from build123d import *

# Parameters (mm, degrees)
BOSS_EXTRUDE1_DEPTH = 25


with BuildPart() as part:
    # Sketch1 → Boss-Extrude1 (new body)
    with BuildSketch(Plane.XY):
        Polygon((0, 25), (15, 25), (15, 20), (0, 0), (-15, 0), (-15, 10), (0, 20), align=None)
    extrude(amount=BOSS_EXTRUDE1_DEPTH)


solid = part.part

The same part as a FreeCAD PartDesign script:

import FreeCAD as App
import Part
import Sketcher

V = App.Vector

doc = App.newDocument("Part")
body = doc.addObject("PartDesign::Body", "Body")

sketch1 = doc.addObject("Sketcher::SketchObject", "Sketch")
body.addObject(sketch1)
sketch1.AttachmentSupport = (doc.XY_Plane, [""])
sketch1.MapMode = "FlatFace"
sketch1.addGeometry([
    Part.LineSegment(V(15, 25, 0), V(0, 25, 0)),
    Part.LineSegment(V(0, 25, 0), V(0, 20, 0)),
    Part.LineSegment(V(0, 20, 0), V(-15, 10, 0)),
    Part.LineSegment(V(-15, 10, 0), V(-15, 0, 0)),
    Part.LineSegment(V(-15, 0, 0), V(0, 0, 0)),
    Part.LineSegment(V(0, 0, 0), V(15, 20, 0)),
    Part.LineSegment(V(15, 20, 0), V(15, 25, 0)),
], False)
sketch1.addConstraint([
    Sketcher.Constraint("Coincident", 0, 2, 1, 1),
    Sketcher.Constraint("Coincident", 1, 2, 2, 1),
    Sketcher.Constraint("Coincident", 2, 2, 3, 1),
    Sketcher.Constraint("Coincident", 3, 2, 4, 1),
    Sketcher.Constraint("Coincident", 4, 2, 5, 1),
    Sketcher.Constraint("Coincident", 5, 2, 6, 1),
    Sketcher.Constraint("Coincident", 6, 2, 0, 1),
    Sketcher.Constraint("Horizontal", 0),
    Sketcher.Constraint("Vertical", 1),
    Sketcher.Constraint("Vertical", 3),
    Sketcher.Constraint("Horizontal", 4),
    Sketcher.Constraint("Vertical", 6),
    Sketcher.Constraint("Coincident", 4, 2, -1, 1),
    Sketcher.Constraint("PointOnObject", 0, 2, -2),
    Sketcher.Constraint("Horizontal", 1, 2, 5, 2),
    Sketcher.Constraint("Equal", 0, 4),
    Sketcher.Constraint("DistanceX", 0, 2, 0, 1, 15.0),
    Sketcher.Constraint("DistanceY", 1, 2, 1, 1, 5.0),
    Sketcher.Constraint("DistanceY", 3, 2, 3, 1, 10.0),
    Sketcher.Constraint("Distance", 5, 25.0),
])
pad1 = doc.addObject("PartDesign::Pad", "Pad")
body.addObject(pad1)
pad1.Profile = sketch1
pad1.Length = 25

doc.recompute()
